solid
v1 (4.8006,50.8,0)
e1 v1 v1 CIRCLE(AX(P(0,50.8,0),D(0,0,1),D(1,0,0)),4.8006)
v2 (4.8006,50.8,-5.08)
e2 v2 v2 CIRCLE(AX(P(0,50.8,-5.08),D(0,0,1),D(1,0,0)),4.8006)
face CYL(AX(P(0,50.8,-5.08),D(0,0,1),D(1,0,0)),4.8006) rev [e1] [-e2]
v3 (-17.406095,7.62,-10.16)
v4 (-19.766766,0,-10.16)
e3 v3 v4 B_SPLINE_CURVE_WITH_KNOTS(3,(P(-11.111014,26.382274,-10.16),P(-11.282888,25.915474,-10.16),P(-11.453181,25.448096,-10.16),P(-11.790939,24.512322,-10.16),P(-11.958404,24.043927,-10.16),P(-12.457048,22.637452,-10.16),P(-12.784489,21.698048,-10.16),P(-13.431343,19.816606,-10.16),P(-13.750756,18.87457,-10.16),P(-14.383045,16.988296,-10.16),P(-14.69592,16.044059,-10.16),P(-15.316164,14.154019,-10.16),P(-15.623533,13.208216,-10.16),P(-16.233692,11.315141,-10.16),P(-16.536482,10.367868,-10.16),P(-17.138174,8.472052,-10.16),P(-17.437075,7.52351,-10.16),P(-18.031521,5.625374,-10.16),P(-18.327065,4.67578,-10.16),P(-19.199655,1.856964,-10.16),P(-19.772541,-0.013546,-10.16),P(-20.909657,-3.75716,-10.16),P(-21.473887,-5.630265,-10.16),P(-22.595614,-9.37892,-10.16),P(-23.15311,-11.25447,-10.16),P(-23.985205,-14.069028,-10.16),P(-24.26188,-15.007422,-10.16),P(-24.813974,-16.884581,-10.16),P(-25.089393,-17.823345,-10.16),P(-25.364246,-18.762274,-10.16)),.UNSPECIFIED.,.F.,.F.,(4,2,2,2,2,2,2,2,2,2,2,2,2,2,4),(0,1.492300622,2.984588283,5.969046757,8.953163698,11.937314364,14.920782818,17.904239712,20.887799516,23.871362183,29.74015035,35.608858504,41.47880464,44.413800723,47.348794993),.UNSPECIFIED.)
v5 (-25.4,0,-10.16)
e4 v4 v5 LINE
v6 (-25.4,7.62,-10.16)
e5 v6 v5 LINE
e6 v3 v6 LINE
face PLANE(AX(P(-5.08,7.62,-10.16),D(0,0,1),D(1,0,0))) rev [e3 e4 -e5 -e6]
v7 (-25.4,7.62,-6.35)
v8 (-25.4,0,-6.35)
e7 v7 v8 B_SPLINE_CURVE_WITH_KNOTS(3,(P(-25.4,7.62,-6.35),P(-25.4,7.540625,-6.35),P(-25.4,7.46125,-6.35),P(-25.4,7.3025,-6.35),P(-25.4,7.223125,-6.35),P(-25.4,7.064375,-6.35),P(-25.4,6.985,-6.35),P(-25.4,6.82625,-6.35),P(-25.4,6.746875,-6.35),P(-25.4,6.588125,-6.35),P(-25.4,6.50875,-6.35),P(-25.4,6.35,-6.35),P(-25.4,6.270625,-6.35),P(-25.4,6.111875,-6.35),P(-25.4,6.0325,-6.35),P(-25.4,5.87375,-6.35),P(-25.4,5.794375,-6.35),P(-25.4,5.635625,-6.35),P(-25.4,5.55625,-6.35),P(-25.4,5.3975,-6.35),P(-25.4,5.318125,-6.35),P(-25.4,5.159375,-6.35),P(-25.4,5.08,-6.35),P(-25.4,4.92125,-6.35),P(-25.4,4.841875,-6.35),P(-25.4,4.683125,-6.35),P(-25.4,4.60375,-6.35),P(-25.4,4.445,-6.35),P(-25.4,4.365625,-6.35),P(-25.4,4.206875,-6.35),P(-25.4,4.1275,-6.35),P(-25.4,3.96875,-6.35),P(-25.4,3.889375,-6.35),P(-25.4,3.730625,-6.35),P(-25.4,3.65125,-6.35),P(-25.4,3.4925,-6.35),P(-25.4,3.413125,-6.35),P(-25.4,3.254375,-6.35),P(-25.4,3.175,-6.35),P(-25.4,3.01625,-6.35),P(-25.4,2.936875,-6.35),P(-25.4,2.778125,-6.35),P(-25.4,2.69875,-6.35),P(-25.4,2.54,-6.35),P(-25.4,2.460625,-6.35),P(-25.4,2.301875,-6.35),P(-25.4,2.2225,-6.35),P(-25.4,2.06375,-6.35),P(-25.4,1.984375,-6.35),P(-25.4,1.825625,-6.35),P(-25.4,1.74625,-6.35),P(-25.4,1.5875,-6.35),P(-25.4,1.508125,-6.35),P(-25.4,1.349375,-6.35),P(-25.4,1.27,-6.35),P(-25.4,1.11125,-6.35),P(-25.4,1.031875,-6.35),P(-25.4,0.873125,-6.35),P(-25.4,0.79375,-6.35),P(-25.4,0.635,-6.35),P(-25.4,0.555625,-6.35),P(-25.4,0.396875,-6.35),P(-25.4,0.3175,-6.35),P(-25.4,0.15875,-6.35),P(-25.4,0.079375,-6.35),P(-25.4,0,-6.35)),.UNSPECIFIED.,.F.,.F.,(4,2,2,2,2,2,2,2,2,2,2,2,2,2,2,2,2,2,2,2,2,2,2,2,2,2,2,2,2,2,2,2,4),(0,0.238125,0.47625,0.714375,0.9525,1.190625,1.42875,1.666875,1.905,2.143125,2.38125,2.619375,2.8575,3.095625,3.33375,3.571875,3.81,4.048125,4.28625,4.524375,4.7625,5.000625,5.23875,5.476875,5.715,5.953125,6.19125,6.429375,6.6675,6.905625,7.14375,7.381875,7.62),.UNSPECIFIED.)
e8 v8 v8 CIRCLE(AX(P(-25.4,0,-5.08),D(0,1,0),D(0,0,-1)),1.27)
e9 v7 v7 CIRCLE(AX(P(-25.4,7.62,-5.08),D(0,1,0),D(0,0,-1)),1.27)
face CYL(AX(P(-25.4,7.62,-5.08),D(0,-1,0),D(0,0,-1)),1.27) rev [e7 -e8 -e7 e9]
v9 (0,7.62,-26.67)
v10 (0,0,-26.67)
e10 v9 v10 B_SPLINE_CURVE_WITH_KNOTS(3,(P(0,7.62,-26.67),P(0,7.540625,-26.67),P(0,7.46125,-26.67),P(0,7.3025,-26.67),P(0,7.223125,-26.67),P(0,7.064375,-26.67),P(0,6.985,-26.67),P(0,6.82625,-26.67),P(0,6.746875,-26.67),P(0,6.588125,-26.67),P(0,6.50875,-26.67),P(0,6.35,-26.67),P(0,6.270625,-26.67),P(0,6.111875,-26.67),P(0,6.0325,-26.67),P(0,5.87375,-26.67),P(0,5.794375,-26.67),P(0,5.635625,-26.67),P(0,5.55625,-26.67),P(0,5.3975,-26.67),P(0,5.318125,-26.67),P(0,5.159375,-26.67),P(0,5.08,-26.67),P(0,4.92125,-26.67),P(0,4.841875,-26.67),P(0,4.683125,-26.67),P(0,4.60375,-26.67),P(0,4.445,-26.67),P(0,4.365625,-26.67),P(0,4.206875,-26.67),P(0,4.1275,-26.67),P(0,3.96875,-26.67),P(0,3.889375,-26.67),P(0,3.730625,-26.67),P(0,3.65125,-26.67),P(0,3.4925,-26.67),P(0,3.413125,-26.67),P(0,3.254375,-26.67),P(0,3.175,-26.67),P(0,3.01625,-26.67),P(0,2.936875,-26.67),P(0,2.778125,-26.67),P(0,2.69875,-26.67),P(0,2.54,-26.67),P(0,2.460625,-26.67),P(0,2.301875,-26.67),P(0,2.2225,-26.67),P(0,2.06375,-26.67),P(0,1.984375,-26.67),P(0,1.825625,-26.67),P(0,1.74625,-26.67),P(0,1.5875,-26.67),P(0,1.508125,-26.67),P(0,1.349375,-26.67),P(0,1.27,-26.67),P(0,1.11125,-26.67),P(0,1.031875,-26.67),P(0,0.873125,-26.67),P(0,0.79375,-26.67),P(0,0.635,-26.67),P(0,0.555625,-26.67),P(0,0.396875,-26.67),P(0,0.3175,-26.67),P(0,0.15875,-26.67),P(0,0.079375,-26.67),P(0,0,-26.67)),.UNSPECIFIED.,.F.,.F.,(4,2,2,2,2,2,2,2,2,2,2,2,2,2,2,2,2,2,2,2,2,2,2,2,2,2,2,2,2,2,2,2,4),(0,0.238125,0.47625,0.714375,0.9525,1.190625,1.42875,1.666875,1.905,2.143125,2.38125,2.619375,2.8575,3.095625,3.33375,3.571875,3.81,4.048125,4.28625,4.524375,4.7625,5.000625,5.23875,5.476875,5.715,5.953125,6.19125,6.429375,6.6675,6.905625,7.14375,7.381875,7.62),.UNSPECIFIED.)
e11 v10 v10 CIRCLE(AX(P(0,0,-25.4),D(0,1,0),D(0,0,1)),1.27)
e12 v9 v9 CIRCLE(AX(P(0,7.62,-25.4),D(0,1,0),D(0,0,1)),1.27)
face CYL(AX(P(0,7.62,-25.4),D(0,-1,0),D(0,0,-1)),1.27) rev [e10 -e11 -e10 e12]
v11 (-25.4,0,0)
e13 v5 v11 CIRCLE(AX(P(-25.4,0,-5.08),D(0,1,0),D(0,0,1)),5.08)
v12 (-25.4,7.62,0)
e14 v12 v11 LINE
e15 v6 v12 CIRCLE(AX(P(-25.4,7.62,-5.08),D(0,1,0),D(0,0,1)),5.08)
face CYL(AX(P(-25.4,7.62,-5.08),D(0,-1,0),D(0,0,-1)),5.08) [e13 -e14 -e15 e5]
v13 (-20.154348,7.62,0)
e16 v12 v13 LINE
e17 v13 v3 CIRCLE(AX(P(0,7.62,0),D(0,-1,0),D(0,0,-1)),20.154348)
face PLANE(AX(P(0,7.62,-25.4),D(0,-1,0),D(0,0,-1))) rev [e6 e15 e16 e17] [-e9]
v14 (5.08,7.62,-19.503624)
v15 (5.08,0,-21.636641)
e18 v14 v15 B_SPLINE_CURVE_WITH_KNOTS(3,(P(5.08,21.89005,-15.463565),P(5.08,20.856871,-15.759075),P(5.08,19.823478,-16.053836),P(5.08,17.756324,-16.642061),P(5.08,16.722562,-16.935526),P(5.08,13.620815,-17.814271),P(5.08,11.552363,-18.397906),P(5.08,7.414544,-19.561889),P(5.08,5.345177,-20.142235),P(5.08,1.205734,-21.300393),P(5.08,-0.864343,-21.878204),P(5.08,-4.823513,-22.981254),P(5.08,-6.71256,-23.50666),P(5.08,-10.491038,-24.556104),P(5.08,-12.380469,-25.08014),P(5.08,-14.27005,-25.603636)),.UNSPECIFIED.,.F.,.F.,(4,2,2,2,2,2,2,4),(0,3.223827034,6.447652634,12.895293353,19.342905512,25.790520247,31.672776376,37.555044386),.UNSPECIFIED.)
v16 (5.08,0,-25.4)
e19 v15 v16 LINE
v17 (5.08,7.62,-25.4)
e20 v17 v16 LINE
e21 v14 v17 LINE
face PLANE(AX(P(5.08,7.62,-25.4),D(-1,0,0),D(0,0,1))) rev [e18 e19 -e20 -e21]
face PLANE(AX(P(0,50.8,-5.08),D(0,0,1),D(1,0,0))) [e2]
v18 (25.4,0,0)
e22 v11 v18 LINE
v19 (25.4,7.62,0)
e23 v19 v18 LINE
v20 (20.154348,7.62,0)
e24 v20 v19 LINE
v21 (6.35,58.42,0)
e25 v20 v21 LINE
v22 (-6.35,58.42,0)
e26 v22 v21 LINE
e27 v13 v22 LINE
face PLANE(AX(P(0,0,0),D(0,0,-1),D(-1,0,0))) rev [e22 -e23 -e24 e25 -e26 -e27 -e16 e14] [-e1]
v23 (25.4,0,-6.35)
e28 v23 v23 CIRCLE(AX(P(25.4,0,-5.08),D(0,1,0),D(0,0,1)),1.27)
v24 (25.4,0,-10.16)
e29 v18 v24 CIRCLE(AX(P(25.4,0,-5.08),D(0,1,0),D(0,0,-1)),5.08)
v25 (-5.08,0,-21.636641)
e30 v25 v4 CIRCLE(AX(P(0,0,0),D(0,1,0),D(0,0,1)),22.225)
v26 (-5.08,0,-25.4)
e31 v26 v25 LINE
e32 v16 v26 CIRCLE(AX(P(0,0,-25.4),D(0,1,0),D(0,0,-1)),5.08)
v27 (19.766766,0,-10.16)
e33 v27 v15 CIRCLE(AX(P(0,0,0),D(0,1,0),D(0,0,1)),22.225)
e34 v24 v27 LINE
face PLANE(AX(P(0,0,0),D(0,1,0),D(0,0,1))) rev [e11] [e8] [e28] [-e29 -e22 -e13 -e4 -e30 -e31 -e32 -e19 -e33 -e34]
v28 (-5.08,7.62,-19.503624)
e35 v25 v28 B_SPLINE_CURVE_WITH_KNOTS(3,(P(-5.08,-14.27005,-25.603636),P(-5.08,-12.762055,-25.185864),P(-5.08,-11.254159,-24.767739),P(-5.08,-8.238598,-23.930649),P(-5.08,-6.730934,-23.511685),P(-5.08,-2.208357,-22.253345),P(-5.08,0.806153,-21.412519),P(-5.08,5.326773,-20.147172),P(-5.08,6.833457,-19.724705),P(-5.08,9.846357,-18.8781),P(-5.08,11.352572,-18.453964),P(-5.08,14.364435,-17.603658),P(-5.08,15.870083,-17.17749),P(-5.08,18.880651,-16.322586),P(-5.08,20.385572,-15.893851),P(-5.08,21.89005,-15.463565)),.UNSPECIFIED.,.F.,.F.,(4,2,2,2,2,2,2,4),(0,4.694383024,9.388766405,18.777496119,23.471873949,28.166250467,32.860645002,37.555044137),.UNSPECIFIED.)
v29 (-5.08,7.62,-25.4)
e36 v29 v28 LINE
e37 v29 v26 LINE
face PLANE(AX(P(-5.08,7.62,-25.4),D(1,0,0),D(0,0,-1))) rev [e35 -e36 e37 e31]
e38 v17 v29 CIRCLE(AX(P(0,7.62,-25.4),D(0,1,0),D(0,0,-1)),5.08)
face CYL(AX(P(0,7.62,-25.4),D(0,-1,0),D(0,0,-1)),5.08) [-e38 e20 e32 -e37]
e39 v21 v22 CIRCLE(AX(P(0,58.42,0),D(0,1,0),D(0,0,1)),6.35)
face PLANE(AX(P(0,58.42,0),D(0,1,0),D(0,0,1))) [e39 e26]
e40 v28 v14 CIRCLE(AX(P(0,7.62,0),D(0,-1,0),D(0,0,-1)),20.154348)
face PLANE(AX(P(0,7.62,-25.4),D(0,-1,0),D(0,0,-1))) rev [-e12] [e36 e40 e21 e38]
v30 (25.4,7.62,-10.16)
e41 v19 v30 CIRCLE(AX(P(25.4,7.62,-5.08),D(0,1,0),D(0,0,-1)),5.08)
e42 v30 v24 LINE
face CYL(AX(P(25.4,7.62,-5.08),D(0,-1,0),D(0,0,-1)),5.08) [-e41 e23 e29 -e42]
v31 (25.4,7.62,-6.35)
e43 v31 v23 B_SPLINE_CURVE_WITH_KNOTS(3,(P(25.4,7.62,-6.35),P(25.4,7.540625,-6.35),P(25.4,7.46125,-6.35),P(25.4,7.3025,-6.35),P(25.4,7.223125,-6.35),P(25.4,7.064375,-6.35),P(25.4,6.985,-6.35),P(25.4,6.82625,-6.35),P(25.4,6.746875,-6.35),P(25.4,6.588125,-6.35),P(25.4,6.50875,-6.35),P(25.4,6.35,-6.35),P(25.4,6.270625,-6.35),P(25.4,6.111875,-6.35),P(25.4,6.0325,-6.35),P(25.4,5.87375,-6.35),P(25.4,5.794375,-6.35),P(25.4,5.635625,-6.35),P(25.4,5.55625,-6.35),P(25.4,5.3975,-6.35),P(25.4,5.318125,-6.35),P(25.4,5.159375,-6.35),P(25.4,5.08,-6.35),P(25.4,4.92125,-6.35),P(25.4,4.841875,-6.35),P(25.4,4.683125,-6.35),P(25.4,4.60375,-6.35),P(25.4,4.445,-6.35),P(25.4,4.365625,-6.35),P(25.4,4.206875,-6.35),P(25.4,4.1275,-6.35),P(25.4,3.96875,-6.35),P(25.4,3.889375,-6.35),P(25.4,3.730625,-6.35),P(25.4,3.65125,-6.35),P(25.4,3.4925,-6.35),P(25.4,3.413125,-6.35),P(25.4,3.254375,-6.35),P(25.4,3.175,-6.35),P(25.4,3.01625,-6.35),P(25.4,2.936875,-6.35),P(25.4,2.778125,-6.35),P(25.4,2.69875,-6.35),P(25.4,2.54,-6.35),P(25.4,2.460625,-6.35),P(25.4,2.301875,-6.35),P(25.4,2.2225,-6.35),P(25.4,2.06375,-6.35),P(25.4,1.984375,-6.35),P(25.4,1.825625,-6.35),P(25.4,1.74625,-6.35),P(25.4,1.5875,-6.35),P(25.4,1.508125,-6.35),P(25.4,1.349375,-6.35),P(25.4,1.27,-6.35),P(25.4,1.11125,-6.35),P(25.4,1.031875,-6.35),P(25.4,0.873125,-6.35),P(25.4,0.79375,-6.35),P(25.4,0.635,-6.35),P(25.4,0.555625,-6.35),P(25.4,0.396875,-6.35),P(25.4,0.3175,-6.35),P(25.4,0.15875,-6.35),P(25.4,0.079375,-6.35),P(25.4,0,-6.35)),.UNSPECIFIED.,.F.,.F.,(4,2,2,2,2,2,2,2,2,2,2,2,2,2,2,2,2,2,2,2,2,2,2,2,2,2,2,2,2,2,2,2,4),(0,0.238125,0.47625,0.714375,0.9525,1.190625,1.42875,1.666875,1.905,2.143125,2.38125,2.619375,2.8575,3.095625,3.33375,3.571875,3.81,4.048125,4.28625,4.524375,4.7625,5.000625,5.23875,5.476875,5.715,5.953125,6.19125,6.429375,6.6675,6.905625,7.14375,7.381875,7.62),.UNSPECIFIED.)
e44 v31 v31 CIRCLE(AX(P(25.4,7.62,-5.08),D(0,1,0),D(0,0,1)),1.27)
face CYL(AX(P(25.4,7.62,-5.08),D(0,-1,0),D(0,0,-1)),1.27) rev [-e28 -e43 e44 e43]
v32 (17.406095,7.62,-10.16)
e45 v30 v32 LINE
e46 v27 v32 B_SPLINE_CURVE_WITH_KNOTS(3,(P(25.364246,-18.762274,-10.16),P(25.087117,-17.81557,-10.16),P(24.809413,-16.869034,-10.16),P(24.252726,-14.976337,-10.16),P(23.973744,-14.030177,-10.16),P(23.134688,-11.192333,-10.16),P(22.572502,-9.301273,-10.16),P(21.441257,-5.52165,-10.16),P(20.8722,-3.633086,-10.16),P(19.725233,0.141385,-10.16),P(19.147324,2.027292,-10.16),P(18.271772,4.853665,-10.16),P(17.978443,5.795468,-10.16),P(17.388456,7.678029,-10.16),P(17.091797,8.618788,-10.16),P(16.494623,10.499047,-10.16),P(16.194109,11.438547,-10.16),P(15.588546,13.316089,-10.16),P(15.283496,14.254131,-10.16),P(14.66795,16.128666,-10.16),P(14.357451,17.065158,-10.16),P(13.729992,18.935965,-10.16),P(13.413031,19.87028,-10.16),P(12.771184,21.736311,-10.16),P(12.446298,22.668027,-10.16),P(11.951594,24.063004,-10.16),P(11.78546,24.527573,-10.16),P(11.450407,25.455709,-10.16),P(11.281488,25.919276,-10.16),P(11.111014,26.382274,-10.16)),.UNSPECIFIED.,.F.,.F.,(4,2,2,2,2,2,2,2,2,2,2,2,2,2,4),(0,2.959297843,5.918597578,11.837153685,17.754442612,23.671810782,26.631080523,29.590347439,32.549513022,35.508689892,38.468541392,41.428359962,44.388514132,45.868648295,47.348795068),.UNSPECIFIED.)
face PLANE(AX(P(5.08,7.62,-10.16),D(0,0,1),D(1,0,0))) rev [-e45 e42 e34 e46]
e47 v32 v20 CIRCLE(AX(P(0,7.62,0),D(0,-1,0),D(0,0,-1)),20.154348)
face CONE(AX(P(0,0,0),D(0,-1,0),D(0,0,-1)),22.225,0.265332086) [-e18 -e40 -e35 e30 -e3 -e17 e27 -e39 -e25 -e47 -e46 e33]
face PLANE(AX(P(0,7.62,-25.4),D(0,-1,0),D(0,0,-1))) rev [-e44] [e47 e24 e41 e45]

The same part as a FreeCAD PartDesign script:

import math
import FreeCAD as App
import Part
import Sketcher
Q = App.Units.Quantity

doc = App.newDocument("Part")
body = doc.addObject("PartDesign::Body", "Body")

sketch1 = doc.addObject("Sketcher::SketchObject", "Sketch")
body.addObject(sketch1)
sketch1.AttachmentSupport = (doc.XZ_Plane, [""])
sketch1.MapMode = "FlatFace"
sketch1.addGeometry([
    Part.LineSegment(App.Vector(-22.225, 0, 0), App.Vector(22.225, 0, 0)),
    Part.ArcOfCircle(Part.Circle(App.Vector(0, 0, 0), App.Vector(0, 0, 1), 22.225), math.radians(180), math.radians(360)),
], False)
sketch1.addConstraint([
    Sketcher.Constraint("Coincident", 0, 1, 1, 1),
    Sketcher.Constraint("Coincident", 1, 2, 0, 2),
    Sketcher.Constraint("Horizontal", 0),
    Sketcher.Constraint("Coincident", 1, 3, -1, 1),
    Sketcher.Constraint("PointOnObject", 0, 1, -1),
    Sketcher.Constraint("Radius", 1, Q("0.875 in")),
])

sketch2 = doc.addObject("Sketcher::SketchObject", "Sketch001")
body.addObject(sketch2)
sketch2.AttachmentSupport = (doc.XZ_Plane, [""])
sketch2.MapMode = "FlatFace"
sketch2.AttachmentOffset = App.Placement(App.Vector(0, 0, -2.3 * 25.4), App.Rotation())
sketch2.addGeometry([
    Part.LineSegment(App.Vector(-6.35, 0, 0), App.Vector(6.35, 0, 0)),
    Part.ArcOfCircle(Part.Circle(App.Vector(0, 0, 0), App.Vector(0, 0, 1), 6.35), math.radians(180), math.radians(360)),
], False)
sketch2.addConstraint([
    Sketcher.Constraint("Coincident", 0, 1, 1, 1),
    Sketcher.Constraint("Coincident", 1, 2, 0, 2),
    Sketcher.Constraint("Horizontal", 0),
    Sketcher.Constraint("Coincident", 1, 3, -1, 1),
    Sketcher.Constraint("PointOnObject", 0, 1, -1),
    Sketcher.Constraint("Radius", 1, Q("0.25 in")),
])

additiveloft = doc.addObject("PartDesign::AdditiveLoft", "AdditiveLoft")
body.addObject(additiveloft)
additiveloft.Profile = sketch1
additiveloft.Sections = [sketch2]

sketch3 = doc.addObject("Sketcher::SketchObject", "Sketch002")
body.addObject(sketch3)
sketch3.AttachmentSupport = (doc.XZ_Plane, [""])
sketch3.MapMode = "FlatFace"
sketch3.addGeometry([
    Part.LineSegment(App.Vector(5.08, -10.16, 0), App.Vector(5.08, -25.4, 0)),
    Part.ArcOfCircle(Part.Circle(App.Vector(0, -25.4, 0), App.Vector(0, 0, 1), 5.08), math.radians(180), math.radians(360)),
    Part.LineSegment(App.Vector(-5.08, -25.4, 0), App.Vector(-5.08, -10.16, 0)),
    Part.LineSegment(App.Vector(-5.08, -10.16, 0), App.Vector(-25.4, -10.16, 0)),
    Part.ArcOfCircle(Part.Circle(App.Vector(-25.4, -5.08, 0), App.Vector(0, 0, 1), 5.08), math.radians(90), math.radians(270)),
    Part.LineSegment(App.Vector(-25.4, 0, 0), App.Vector(25.4, 0, 0)),
    Part.ArcOfCircle(Part.Circle(App.Vector(25.4, -5.08, 0), App.Vector(0, 0, 1), 5.08), math.radians(-90), math.radians(90)),
    Part.LineSegment(App.Vector(25.4, -10.16, 0), App.Vector(5.08, -10.16, 0)),
    Part.Circle(App.Vector(25.4, -5.08, 0), App.Vector(0, 0, 1), 1.27),
    Part.Circle(App.Vector(-25.4, -5.08, 0), App.Vector(0, 0, 1), 1.27),
    Part.Circle(App.Vector(0, -25.4, 0), App.Vector(0, 0, 1), 1.27),
], False)
sketch3.addConstraint([
    Sketcher.Constraint("Tangent", 0, 2, 1, 2),
    Sketcher.Constraint("Tangent", 1, 1, 2, 1),
    Sketcher.Constraint("Coincident", 2, 2, 3, 1),
    Sketcher.Constraint("Tangent", 3, 2, 4, 2),
    Sketcher.Constraint("Tangent", 4, 1, 5, 1),
    Sketcher.Constraint("Tangent", 5, 2, 6, 2),
    Sketcher.Constraint("Tangent", 6, 1, 7, 1),
    Sketcher.Constraint("Coincident", 7, 2, 0, 1),
    Sketcher.Constraint("Vertical", 0),
    Sketcher.Constraint("Vertical", 2),
    Sketcher.Constraint("Horizontal", 3),
    Sketcher.Constraint("Horizontal", 5),
    Sketcher.Constraint("Horizontal", 7),
    Sketcher.Constraint("Coincident", 8, 3, 6, 3),
    Sketcher.Constraint("Coincident", 9, 3, 4, 3),
    Sketcher.Constraint("Coincident", 10, 3, 1, 3),
    Sketcher.Constraint("Equal", 1, 4),
    Sketcher.Constraint("Equal", 4, 6),
    Sketcher.Constraint("Equal", 8, 9),
    Sketcher.Constraint("Equal", 9, 10),
    Sketcher.Constraint("Symmetric", 4, 1, 5, 2, -1, 1),
    Sketcher.Constraint("PointOnObject", 1, 3, -2),
    Sketcher.Constraint("Diameter", 8, Q("0.1 in")),
    Sketcher.Constraint("Radius", 1, Q("0.2 in")),
    Sketcher.Constraint("DistanceX", 5, 1, 5, 2, Q("2 in")),
    Sketcher.Constraint("DistanceY", 0, 2, 0, 1, Q("0.6 in")),
])
pad1 = doc.addObject("PartDesign::Pad", "Pad")
body.addObject(pad1)
pad1.Profile = sketch3
pad1.Length = Q("0.3 in")
pad1.Reversed = True

sketch4 = doc.addObject("Sketcher::SketchObject", "Sketch003")
body.addObject(sketch4)
sketch4.AttachmentSupport = (doc.XY_Plane, [""])
sketch4.MapMode = "FlatFace"
sketch4.addGeometry(Part.Circle(App.Vector(0, 50.8, 0), App.Vector(0, 0, 1), 4.8006), False)
sketch4.addConstraint([
    Sketcher.Constraint("PointOnObject", 0, 3, -2),
    Sketcher.Constraint("Diameter", 0, Q("0.378 in")),
    Sketcher.Constraint("DistanceY", -1, 1, 0, 3, Q("2 in")),
])
pocket1 = doc.addObject("PartDesign::Pocket", "Pocket")
body.addObject(pocket1)
pocket1.Profile = sketch4
pocket1.Length = Q("0.2 in")

doc.recompute()
